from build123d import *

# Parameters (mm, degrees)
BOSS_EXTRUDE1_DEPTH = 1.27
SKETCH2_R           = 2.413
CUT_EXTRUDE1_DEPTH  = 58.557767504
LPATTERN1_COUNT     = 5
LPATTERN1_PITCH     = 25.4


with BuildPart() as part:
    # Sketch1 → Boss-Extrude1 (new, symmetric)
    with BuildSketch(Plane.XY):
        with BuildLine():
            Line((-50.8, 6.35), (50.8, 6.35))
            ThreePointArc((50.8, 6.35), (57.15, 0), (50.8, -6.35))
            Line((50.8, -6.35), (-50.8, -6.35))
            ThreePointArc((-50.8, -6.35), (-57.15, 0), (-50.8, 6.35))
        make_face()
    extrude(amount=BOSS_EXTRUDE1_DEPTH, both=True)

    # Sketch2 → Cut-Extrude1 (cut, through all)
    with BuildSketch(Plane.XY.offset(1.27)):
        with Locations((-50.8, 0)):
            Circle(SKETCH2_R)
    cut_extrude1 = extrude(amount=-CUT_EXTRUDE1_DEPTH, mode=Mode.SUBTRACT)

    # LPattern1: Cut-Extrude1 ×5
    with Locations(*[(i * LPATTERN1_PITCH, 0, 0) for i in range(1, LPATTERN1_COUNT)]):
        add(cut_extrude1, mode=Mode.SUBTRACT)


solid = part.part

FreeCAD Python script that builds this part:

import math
import FreeCAD as App
import Part
import Sketcher
from FreeCAD import Vector
Q = App.Units.Quantity

doc = App.newDocument("Part")
body = doc.addObject("PartDesign::Body", "Body")

sketch1 = body.newObject("Sketcher::SketchObject", "Sketch")
sketch1.AttachmentSupport = (doc.getObject("XY_Plane"), [""])
sketch1.MapMode = "FlatFace"
sketch1.addGeometry(Part.LineSegment(Vector(50.8, 6.35, 0), Vector(-50.8, 6.35, 0)), False)
sketch1.addGeometry(Part.ArcOfCircle(Part.Circle(Vector(-50.8, 0, 0), Vector(0, 0, 1), 6.35), math.radians(90), math.radians(270)), False)
sketch1.addGeometry(Part.LineSegment(Vector(-50.8, -6.35, 0), Vector(50.8, -6.35, 0)), False)
sketch1.addGeometry(Part.ArcOfCircle(Part.Circle(Vector(50.8, 0, 0), Vector(0, 0, 1), 6.35), math.radians(-90), math.radians(90)), False)
sketch1.addConstraint(Sketcher.Constraint("Tangent", 0, 2, 1, 1))
sketch1.addConstraint(Sketcher.Constraint("Tangent", 1, 2, 2, 1))
sketch1.addConstraint(Sketcher.Constraint("Tangent", 2, 2, 3, 1))
sketch1.addConstraint(Sketcher.Constraint("Tangent", 3, 2, 0, 1))
sketch1.addConstraint(Sketcher.Constraint("Horizontal", 0))
sketch1.addConstraint(Sketcher.Constraint("Horizontal", 2))
sketch1.addConstraint(Sketcher.Constraint("Symmetric", 1, 3, 3, 3, -1, 1))
sketch1.addConstraint(Sketcher.Constraint("DistanceX", 0, 2, 0, 1, Q("4 in")))
sketch1.addConstraint(Sketcher.Constraint("Radius", 1, Q("0.25 in")))
pad1 = body.newObject("PartDesign::Pad", "Pad")
pad1.Profile = sketch1
pad1.Length = Q("0.1 in")
pad1.Midplane = True

sketch2 = body.newObject("Sketcher::SketchObject", "Sketch001")
sketch2.AttachmentSupport = (doc.getObject("XY_Plane"), [""])
sketch2.MapMode = "FlatFace"
sketch2.AttachmentOffset = App.Placement(Vector(0, 0, 0.05 * 25.4), App.Rotation())
sketch2.addGeometry(Part.Circle(Vector(-50.8, 0, 0), Vector(0, 0, 1), 2.413), False)
sketch2.addConstraint(Sketcher.Constraint("PointOnObject", 0, 3, -1))
sketch2.addConstraint(Sketcher.Constraint("Diameter", 0, Q("0.19 in")))
sketch2.addConstraint(Sketcher.Constraint("DistanceX", 0, 3, -1, 1, Q("2 in")))
pocket1 = body.newObject("PartDesign::Pocket", "Pocket")
pocket1.Profile = sketch2
pocket1.Type = "ThroughAll"
doc.recompute()

linearpattern = body.newObject("PartDesign::LinearPattern", "LinearPattern")
linearpattern.Originals = [pocket1]
linearpattern.Direction = (doc.getObject("X_Axis"), [""])
linearpattern.Mode = "offset"
linearpattern.Offset = Q("1 in")
linearpattern.Occurrences = 5
body.Tip = linearpattern

doc.recompute()
